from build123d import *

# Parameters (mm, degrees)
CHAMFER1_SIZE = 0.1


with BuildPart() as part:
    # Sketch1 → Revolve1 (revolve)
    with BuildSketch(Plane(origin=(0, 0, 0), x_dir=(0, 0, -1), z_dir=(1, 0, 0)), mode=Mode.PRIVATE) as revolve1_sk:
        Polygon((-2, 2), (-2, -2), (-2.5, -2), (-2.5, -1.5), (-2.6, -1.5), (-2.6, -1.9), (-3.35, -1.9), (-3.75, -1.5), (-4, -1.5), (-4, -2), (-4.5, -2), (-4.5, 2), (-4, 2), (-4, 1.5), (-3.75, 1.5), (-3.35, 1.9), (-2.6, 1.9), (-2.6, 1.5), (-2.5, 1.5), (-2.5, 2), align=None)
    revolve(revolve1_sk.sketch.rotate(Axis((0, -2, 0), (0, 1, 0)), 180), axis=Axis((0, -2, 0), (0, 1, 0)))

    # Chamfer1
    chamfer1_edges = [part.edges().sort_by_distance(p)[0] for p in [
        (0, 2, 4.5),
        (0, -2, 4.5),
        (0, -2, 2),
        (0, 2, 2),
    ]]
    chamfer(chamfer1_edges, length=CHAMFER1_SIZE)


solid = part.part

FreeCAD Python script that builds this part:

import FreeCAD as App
import Part
import Sketcher
from FreeCAD import Vector
Q = App.Units.Quantity


def edges_at(feature, points):
    """Names of the edges that pass closest to the given points."""
    edges = feature.Shape.Edges
    near = lambda p: min(range(len(edges)), key=lambda i: edges[i].distToShape(Part.Vertex(*p))[0])
    return sorted({f"Edge{near(p) + 1}" for p in points})


def add_polygon(sketch, points):
    """Adds a closed chain of lines whose ends are joined by coincident constraints."""
    first, n = sketch.GeometryCount, len(points)
    for a, b in zip(points, points[1:] + points[:1]):
        sketch.addGeometry(Part.LineSegment(App.Vector(*a, 0), App.Vector(*b, 0)), False)
    for i in range(n):
        sketch.addConstraint(Sketcher.Constraint("Coincident", first + i, 2, first + (i + 1) % n, 1))

doc = App.newDocument("Part")
body = doc.addObject("PartDesign::Body", "Body")

# Sketch on YZ plane
sketch1 = doc.addObject("Sketcher::SketchObject", "Sketch")
body.addObject(sketch1)
sketch1.AttachmentSupport = (doc.YZ_Plane, [""])
sketch1.MapMode = "FlatFace"
add_polygon(sketch1, [(-2, 2), (2, 2), (2, 2.5), (1.5, 2.5), (1.5, 2.6), (1.9, 2.6), (1.9, 3.35), (1.5, 3.75), (1.5, 4), (2, 4), (2, 4.5), (-2, 4.5), (-2, 4), (-1.5, 4), (-1.5, 3.75), (-1.9, 3.35), (-1.9, 2.6), (-1.5, 2.6), (-1.5, 2.5), (-2, 2.5)])  # lines 0-19
sketch1.addConstraint(Sketcher.Constraint("Horizontal", 0))
sketch1.addConstraint(Sketcher.Constraint("Vertical", 1))
sketch1.addConstraint(Sketcher.Constraint("Horizontal", 2))
sketch1.addConstraint(Sketcher.Constraint("Vertical", 3))
sketch1.addConstraint(Sketcher.Constraint("Horizontal", 4))
sketch1.addConstraint(Sketcher.Constraint("Vertical", 5))
sketch1.addConstraint(Sketcher.Constraint("Vertical", 7))
sketch1.addConstraint(Sketcher.Constraint("Horizontal", 8))
sketch1.addConstraint(Sketcher.Constraint("Vertical", 9))
sketch1.addConstraint(Sketcher.Constraint("Horizontal", 10))
sketch1.addConstraint(Sketcher.Constraint("Vertical", 11))
sketch1.addConstraint(Sketcher.Constraint("Horizontal", 12))
sketch1.addConstraint(Sketcher.Constraint("Vertical", 13))
sketch1.addConstraint(Sketcher.Constraint("Vertical", 15))
sketch1.addConstraint(Sketcher.Constraint("Horizontal", 16))
sketch1.addConstraint(Sketcher.Constraint("Vertical", 17))
sketch1.addConstraint(Sketcher.Constraint("Horizontal", 18))
sketch1.addConstraint(Sketcher.Constraint("Vertical", 19))
sketch1.addConstraint(Sketcher.Constraint("Symmetric", 8, 2, 11, 2, -2))
sketch1.addConstraint(Sketcher.Constraint("Symmetric", 6, 2, 13, 2, -2))
sketch1.addConstraint(Sketcher.Constraint("Symmetric", 5, 2, 14, 2, -2))
sketch1.addConstraint(Sketcher.Constraint("Symmetric", 3, 2, 16, 2, -2))
sketch1.addConstraint(Sketcher.Constraint("Symmetric", 1, 2, 18, 2, -2))
sketch1.addConstraint(Sketcher.Constraint("Perpendicular", 6, 14))
sketch1.addConstraint(Sketcher.Constraint("Vertical", 3, 2, 6, 2))
sketch1.addConstraint(Sketcher.Constraint("Vertical", 1, 2, 8, 2))
sketch1.addConstraint(Sketcher.Constraint("Equal", 18, 1))
sketch1.addConstraint(Sketcher.Constraint("Equal", 1, 9))
sketch1.addConstraint(Sketcher.Constraint("DistanceX", 0, 1, 0, 2, Q("4 mm")))
sketch1.addConstraint(Sketcher.Constraint("DistanceX", 2, 2, 2, 1, Q("0.5 mm")))
sketch1.addConstraint(Sketcher.Constraint("DistanceX", 4, 1, 4, 2, Q("0.4 mm")))
sketch1.addConstraint(Sketcher.Constraint("DistanceY", 3, 1, 3, 2, Q("0.1 mm")))
sketch1.addConstraint(Sketcher.Constraint("DistanceY", -1, 1, 0, 2, Q("2 mm")))
sketch1.addConstraint(Sketcher.Constraint("DistanceY", -1, 1, 7, 2, Q("4 mm")))
sketch1.addConstraint(Sketcher.Constraint("DistanceY", 5, 1, 5, 2, Q("0.75 mm")))
revolution = doc.addObject("PartDesign::Revolution", "Revolution")
body.addObject(revolution)
revolution.Profile = sketch1
revolution.ReferenceAxis = (sketch1, ["H_Axis"])
revolution.Angle = 360
doc.recompute()

chamfer = doc.addObject("PartDesign::Chamfer", "Chamfer")
body.addObject(chamfer)
chamfer.Base = (revolution, edges_at(revolution, [
    (0, 2, 4.5),
    (0, -2, 4.5),
    (0, -2, 2),
    (0, 2, 2),
]))
chamfer.Size = 0.1

doc.recompute()
